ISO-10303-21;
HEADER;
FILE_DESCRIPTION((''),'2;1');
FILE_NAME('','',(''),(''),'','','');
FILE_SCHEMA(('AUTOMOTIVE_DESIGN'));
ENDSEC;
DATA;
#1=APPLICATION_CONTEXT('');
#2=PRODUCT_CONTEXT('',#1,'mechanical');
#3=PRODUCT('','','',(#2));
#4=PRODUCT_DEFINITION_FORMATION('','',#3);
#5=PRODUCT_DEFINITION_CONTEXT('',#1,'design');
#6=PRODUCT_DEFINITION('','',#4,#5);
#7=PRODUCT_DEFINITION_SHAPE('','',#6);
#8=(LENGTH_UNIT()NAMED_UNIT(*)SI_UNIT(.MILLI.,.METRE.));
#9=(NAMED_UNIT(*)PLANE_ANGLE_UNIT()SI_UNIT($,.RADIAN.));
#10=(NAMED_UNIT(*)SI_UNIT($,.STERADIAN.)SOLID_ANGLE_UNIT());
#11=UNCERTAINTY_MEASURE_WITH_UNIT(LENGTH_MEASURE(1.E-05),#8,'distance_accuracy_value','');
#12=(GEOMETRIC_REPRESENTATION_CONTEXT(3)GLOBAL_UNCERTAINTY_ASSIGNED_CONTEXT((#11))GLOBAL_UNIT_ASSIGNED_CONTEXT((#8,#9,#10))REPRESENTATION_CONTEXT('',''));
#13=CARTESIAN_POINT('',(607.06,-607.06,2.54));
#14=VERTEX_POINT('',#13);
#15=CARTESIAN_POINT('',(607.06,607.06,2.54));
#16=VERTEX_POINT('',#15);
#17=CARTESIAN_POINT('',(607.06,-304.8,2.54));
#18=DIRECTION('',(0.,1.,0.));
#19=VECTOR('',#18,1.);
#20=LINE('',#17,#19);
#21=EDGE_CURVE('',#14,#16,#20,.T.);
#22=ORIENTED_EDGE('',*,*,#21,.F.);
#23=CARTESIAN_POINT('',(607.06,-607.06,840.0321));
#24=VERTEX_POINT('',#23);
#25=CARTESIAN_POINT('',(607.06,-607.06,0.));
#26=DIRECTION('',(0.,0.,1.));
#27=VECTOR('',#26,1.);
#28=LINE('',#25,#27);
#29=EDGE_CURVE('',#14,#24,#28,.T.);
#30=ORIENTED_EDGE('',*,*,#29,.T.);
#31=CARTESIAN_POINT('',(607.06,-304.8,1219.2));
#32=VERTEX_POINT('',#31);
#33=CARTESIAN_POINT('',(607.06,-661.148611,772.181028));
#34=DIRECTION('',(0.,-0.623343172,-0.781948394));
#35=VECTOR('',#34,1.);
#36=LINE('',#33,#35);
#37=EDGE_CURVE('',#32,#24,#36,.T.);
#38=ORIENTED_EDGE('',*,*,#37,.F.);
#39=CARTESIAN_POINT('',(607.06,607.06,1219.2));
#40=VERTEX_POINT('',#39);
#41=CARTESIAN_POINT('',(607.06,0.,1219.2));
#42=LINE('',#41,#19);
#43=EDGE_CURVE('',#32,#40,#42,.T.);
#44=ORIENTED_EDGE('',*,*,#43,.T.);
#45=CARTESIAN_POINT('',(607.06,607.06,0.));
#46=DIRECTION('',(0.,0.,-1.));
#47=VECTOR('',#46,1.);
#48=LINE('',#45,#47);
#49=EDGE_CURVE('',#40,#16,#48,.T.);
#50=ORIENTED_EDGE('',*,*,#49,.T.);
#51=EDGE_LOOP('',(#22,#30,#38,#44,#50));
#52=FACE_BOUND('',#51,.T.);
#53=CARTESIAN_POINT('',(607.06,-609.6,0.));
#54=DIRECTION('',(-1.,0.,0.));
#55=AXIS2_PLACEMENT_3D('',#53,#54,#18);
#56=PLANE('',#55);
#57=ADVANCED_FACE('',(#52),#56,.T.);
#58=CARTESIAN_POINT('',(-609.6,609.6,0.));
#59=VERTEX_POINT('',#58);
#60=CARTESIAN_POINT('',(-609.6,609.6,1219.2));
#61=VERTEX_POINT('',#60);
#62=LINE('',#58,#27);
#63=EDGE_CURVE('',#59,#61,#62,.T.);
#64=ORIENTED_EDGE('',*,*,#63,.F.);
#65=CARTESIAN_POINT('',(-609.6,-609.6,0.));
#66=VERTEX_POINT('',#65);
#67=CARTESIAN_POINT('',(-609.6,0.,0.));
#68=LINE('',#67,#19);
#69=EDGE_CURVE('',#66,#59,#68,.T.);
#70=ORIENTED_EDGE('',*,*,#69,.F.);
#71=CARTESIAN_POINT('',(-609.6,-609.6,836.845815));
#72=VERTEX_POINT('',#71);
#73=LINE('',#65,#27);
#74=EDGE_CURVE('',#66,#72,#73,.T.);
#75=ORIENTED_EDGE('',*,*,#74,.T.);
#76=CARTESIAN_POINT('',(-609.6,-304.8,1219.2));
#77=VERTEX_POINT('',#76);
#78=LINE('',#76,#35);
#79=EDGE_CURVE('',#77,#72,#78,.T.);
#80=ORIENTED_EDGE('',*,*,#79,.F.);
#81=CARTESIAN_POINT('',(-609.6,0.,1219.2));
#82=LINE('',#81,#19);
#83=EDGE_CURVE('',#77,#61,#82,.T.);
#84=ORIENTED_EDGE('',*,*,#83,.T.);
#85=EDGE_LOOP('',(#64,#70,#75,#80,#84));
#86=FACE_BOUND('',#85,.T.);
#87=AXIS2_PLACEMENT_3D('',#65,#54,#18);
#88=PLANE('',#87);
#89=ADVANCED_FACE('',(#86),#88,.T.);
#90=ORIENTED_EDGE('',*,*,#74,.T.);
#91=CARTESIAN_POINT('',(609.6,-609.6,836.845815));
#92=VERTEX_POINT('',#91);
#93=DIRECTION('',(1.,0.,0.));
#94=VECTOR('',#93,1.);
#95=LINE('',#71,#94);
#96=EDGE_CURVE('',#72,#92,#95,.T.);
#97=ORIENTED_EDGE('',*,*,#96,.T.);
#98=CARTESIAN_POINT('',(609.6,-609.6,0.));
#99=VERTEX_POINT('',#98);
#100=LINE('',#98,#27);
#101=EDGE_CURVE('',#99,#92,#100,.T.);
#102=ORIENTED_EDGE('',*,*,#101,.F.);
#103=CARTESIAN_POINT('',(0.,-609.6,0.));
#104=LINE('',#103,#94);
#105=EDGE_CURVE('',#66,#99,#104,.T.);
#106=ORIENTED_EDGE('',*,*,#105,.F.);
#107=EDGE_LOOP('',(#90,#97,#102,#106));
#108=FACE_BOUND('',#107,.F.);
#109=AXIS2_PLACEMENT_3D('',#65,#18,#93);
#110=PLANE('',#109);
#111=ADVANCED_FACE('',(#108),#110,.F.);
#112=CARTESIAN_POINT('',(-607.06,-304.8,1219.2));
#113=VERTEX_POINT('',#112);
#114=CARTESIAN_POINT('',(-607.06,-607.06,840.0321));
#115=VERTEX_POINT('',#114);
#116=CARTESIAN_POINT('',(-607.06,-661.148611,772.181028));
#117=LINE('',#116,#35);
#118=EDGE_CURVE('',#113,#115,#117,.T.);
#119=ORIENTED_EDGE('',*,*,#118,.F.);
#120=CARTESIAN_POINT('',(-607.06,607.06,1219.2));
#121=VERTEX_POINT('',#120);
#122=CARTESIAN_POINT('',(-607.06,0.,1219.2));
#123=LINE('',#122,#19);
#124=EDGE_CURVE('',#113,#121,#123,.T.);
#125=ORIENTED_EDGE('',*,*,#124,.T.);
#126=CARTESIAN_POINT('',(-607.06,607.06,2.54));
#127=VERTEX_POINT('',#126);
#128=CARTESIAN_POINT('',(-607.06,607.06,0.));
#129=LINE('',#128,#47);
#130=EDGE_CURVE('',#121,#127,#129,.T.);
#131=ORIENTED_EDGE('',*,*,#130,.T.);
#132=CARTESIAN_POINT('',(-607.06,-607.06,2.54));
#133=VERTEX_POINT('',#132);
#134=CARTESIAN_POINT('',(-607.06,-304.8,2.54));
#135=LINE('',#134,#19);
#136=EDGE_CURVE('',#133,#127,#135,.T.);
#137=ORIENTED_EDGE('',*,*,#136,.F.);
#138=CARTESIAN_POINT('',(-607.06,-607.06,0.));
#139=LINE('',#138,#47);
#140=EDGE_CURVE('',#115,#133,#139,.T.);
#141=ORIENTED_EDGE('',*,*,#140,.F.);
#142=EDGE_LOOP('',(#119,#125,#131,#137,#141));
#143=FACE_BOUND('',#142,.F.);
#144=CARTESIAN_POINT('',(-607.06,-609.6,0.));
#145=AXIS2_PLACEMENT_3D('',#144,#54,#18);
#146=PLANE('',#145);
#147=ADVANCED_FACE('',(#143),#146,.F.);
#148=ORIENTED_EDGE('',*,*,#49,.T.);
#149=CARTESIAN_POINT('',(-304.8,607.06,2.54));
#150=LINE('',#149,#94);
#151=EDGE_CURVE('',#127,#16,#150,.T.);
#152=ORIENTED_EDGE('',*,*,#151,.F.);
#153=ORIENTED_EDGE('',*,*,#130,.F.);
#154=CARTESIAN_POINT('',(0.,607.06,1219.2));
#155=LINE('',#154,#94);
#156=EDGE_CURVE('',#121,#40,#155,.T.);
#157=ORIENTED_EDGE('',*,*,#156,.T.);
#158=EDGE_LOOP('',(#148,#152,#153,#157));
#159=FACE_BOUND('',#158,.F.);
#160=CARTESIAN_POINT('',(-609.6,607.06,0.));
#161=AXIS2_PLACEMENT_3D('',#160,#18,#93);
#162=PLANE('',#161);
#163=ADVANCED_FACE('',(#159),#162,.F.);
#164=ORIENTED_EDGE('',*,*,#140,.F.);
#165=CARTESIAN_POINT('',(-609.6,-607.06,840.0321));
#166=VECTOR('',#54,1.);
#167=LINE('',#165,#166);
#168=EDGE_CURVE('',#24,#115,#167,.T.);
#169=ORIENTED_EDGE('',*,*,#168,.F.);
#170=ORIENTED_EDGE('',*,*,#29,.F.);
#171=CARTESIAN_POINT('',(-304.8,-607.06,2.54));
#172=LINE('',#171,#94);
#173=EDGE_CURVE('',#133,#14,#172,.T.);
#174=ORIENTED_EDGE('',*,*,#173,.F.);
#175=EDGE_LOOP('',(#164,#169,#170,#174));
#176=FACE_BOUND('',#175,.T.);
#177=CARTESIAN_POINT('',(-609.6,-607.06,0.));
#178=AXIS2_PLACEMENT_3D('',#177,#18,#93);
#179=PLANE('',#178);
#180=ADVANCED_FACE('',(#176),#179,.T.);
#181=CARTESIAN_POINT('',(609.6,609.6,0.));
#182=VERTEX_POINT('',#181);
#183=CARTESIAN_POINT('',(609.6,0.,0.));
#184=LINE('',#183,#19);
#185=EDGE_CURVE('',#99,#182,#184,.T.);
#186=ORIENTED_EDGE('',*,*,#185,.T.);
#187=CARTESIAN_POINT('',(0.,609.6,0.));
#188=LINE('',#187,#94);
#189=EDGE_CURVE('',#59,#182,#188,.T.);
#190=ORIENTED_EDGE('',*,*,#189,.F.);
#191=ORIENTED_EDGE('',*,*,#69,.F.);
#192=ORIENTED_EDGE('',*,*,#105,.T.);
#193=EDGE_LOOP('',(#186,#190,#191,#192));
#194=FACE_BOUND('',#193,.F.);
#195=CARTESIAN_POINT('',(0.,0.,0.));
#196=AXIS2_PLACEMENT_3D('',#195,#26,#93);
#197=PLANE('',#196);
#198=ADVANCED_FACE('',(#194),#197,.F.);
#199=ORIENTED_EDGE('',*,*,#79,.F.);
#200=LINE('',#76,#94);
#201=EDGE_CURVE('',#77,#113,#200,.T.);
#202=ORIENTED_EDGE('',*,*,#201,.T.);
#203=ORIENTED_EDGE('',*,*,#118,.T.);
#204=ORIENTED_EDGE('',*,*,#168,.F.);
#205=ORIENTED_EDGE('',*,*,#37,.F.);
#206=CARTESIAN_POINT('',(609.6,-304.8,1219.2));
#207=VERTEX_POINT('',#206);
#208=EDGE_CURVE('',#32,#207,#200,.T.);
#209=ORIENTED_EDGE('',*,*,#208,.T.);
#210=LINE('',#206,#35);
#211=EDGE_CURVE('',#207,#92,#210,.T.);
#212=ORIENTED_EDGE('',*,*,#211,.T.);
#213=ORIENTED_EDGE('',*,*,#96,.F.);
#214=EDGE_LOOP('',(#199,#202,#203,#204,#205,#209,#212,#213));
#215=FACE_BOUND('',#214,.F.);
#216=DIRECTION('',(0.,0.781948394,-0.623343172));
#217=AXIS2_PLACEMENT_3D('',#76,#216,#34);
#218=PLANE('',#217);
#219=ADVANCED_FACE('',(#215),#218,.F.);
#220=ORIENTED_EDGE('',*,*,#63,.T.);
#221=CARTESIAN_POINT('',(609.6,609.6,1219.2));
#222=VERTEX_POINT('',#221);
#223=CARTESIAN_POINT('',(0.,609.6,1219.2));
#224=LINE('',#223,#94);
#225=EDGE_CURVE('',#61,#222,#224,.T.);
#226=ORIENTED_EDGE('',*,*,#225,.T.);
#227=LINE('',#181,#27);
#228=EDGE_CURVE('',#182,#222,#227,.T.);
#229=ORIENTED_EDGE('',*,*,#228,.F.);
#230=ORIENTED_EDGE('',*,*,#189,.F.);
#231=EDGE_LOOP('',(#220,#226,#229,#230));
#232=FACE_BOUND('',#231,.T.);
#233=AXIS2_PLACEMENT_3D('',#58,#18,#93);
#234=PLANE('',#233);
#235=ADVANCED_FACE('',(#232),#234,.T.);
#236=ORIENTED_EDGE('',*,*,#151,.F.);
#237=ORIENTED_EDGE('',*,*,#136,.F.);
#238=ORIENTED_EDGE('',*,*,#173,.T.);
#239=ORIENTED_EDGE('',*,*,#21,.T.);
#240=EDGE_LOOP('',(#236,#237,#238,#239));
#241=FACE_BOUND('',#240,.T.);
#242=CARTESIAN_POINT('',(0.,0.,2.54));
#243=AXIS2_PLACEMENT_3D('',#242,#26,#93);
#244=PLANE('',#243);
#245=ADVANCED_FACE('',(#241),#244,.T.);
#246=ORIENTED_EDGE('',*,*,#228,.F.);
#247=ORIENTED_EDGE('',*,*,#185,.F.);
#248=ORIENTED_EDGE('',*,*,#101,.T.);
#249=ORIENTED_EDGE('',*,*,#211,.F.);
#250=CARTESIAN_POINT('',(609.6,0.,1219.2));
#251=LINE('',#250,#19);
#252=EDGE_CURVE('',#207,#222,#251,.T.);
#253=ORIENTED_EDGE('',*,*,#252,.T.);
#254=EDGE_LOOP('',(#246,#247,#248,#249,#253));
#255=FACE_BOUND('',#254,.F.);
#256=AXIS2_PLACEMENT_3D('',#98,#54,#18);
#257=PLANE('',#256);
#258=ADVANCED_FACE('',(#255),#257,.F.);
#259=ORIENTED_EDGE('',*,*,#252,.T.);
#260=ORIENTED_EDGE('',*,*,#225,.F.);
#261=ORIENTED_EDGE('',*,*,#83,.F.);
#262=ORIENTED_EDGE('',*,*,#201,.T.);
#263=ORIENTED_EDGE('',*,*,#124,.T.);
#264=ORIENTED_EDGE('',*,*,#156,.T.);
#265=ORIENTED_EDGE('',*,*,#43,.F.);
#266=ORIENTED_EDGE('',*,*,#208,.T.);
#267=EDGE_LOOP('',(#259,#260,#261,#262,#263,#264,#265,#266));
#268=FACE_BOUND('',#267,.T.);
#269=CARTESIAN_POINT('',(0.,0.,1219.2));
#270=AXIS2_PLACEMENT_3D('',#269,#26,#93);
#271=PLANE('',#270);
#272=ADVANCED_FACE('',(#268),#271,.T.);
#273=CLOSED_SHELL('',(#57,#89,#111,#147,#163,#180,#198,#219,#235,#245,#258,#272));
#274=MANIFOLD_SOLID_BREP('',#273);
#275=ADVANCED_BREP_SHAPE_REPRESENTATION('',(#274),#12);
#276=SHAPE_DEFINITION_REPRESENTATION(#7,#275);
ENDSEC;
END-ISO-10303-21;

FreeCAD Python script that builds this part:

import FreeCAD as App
import Part
import Sketcher

V = App.Vector
Q = App.Units.Quantity


def faces_at(feature, points):
    """Names of the faces that lie closest to the given points."""
    faces = feature.Shape.Faces
    near = lambda p: min(range(len(faces)), key=lambda i: faces[i].distToShape(Part.Vertex(*p))[0])
    return sorted({f"Face{near(p) + 1}" for p in points})

doc = App.newDocument("Part")
body = doc.addObject("PartDesign::Body", "Body")

# Sketch on XY plane
sketch1 = body.newObject("Sketcher::SketchObject", "Sketch")
sketch1.AttachmentSupport = (doc.getObject("XY_Plane"), [""])
sketch1.MapMode = "FlatFace"
sketch1.addGeometry([
    Part.LineSegment(V(-610, 610, 0), V(-610, -610, 0)),
    Part.LineSegment(V(-610, -610, 0), V(610, -610, 0)),
    Part.LineSegment(V(610, -610, 0), V(610, 610, 0)),
    Part.LineSegment(V(610, 610, 0), V(-610, 610, 0)),
], False)
sketch1.addConstraint([
    Sketcher.Constraint("Coincident", 0, 2, 1, 1),
    Sketcher.Constraint("Coincident", 1, 2, 2, 1),
    Sketcher.Constraint("Coincident", 2, 2, 3, 1),
    Sketcher.Constraint("Coincident", 3, 2, 0, 1),
    Sketcher.Constraint("Vertical", 0),
    Sketcher.Constraint("Horizontal", 1),
    Sketcher.Constraint("Vertical", 2),
    Sketcher.Constraint("Horizontal", 3),
    Sketcher.Constraint("Symmetric", 0, 2, 2, 2, -1, 1),
    Sketcher.Constraint("Equal", 3, 0),
    Sketcher.Constraint("DistanceX", 1, 1, 1, 2, Q("48 in")),
])
pad1 = body.newObject("PartDesign::Pad", "Pad")
pad1.Profile = sketch1
pad1.Length = Q("48 in")
doc.recompute()

thickness = body.newObject("PartDesign::Thickness", "Thickness")
thickness.Base = (pad1, faces_at(pad1, [(0, 0, 1219.2)]))
thickness.Value = Q("0.1 in")
thickness.Reversed = True
thickness.Join = "Arc"

# Sketch on YZ plane
sketch2 = body.newObject("Sketcher::SketchObject", "Sketch001")
sketch2.AttachmentSupport = (doc.getObject("YZ_Plane"), [""])
sketch2.MapMode = "FlatFace"
sketch2.AttachmentOffset = App.Placement(V(0, 0, -24 * 25.4), App.Rotation())
sketch2.addGeometry([
    Part.LineSegment(V(-610, 837, 0), V(-610, 1219, 0)),
    Part.LineSegment(V(-610, 1219, 0), V(-305, 1219, 0)),
    Part.LineSegment(V(-305, 1219, 0), V(-610, 837, 0)),
], False)
sketch2.addConstraint([
    Sketcher.Constraint("Coincident", 0, 2, 1, 1),
    Sketcher.Constraint("Coincident", 1, 2, 2, 1),
    Sketcher.Constraint("Coincident", 2, 2, 0, 1),
    Sketcher.Constraint("Vertical", 0),
    Sketcher.Constraint("Horizontal", 1),
    Sketcher.Constraint("DistanceX", 1, 1, 1, 2, Q("12 in")),
    Sketcher.Constraint("DistanceX", 0, 2, -1, 1, Q("24 in")),
    Sketcher.Constraint("DistanceY", -1, 1, 0, 2, Q("48 in")),
    Sketcher.Constraint("Distance", 2, Q("488.976239 mm")),
])
pocket1 = body.newObject("PartDesign::Pocket", "Pocket")
pocket1.Profile = sketch2
pocket1.Length = Q("48 in")
pocket1.Reversed = True

doc.recompute()
